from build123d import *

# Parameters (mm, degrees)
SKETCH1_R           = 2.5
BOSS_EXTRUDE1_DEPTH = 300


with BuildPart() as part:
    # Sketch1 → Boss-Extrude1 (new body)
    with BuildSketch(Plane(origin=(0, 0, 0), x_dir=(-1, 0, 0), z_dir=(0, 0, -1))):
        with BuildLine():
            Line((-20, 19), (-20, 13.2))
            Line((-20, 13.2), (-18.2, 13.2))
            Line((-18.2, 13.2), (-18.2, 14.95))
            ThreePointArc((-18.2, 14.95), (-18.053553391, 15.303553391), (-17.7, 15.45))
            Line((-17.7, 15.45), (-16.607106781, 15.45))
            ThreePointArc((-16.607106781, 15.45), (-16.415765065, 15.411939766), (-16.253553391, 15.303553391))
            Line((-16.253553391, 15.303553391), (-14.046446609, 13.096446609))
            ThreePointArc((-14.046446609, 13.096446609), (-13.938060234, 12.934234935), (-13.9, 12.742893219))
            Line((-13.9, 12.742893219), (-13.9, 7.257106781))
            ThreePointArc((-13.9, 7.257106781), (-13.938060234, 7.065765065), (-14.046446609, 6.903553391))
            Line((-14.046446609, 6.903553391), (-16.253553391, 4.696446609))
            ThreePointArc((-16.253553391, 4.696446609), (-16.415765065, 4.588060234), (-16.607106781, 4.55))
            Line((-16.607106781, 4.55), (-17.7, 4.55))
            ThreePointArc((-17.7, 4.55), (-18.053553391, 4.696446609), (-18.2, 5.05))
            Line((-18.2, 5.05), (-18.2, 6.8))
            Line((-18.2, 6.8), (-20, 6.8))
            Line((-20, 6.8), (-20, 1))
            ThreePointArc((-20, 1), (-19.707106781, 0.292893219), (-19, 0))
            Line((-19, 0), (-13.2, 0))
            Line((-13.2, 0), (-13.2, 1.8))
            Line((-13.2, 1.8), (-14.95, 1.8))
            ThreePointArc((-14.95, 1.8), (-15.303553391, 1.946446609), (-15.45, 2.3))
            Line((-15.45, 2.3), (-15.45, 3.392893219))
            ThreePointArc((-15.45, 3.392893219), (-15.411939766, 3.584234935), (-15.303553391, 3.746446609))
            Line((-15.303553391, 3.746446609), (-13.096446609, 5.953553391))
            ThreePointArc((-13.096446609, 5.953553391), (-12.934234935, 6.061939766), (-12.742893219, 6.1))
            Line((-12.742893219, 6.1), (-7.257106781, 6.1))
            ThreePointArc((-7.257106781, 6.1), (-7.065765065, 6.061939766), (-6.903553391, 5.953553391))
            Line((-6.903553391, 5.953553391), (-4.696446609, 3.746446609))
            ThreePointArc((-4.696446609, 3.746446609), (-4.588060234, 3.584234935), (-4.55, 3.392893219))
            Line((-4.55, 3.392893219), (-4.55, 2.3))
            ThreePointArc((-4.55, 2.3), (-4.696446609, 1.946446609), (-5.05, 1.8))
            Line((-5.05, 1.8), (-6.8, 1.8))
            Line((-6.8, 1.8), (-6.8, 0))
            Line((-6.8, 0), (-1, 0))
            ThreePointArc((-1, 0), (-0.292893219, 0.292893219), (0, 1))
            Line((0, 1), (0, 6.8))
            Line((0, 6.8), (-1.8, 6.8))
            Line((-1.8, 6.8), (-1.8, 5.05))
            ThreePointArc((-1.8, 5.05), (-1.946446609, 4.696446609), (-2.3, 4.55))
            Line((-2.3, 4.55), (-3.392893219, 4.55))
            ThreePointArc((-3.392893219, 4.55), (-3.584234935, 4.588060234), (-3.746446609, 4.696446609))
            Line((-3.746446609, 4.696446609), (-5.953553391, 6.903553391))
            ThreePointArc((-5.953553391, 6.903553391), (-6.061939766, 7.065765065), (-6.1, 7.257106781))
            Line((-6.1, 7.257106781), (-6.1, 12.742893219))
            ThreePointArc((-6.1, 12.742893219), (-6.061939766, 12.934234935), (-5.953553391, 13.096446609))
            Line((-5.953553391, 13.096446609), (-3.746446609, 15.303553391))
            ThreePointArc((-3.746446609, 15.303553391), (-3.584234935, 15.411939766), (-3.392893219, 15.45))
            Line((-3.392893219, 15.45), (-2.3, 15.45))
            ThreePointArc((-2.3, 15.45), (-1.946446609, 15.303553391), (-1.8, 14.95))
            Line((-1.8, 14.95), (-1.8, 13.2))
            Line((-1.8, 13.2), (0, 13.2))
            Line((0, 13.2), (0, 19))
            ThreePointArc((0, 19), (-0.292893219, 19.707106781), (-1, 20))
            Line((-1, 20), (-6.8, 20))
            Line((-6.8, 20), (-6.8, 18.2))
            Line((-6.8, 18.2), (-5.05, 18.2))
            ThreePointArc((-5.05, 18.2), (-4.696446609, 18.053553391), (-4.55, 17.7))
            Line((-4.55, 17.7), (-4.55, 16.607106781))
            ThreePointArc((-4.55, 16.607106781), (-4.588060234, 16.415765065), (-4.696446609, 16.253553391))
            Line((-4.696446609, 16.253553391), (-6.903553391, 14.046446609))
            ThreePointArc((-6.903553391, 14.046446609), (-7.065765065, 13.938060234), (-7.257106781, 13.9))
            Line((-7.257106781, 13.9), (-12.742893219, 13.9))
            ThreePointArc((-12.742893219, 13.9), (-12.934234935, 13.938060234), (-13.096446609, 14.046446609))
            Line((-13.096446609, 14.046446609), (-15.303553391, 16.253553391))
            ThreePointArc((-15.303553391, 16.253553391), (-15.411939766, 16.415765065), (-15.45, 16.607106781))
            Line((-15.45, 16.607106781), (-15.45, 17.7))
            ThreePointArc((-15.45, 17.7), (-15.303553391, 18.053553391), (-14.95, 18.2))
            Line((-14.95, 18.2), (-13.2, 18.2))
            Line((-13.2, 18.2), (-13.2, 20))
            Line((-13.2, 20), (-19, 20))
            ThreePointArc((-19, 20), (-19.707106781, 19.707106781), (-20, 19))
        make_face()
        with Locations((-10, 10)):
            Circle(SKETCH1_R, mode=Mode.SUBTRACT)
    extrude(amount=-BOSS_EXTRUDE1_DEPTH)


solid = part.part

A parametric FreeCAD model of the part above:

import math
import FreeCAD as App
import Part
import Sketcher

V = App.Vector

doc = App.newDocument("Part")
body = doc.addObject("PartDesign::Body", "Body")

# Sketch on XY plane
sketch1 = doc.addObject("Sketcher::SketchObject", "Sketch")
body.addObject(sketch1)
sketch1.AttachmentSupport = (doc.XY_Plane, [""])
sketch1.MapMode = "FlatFace"
sketch1.addGeometry([
    Part.LineSegment(V(20, 19, 0), V(20, 13.2, 0)),  # 0
    Part.LineSegment(V(20, 13.2, 0), V(18.2, 13.2, 0)),  # 1
    Part.LineSegment(V(18.2, 13.2, 0), V(18.2, 14.95, 0)),  # 2
    Part.ArcOfCircle(Part.Circle(V(17.7, 14.95, 0), V(0, 0, 1), 0.5), math.radians(0), math.radians(90)),  # 3
    Part.LineSegment(V(17.7, 15.45, 0), V(16.61, 15.45, 0)),  # 4
    Part.ArcOfCircle(Part.Circle(V(16.61, 14.95, 0), V(0, 0, 1), 0.5), math.radians(90), math.radians(135)),  # 5
    Part.LineSegment(V(16.25, 15.3, 0), V(14.05, 13.1, 0)),  # 6
    Part.ArcOfCircle(Part.Circle(V(14.4, 12.74, 0), V(0, 0, 1), 0.5), math.radians(135), math.radians(180)),  # 7
    Part.LineSegment(V(13.9, 12.74, 0), V(13.9, 7.26, 0)),  # 8
    Part.ArcOfCircle(Part.Circle(V(14.4, 7.26, 0), V(0, 0, 1), 0.5), math.radians(-180), math.radians(-135)),  # 9
    Part.LineSegment(V(14.05, 6.9, 0), V(16.25, 4.7, 0)),  # 10
    Part.ArcOfCircle(Part.Circle(V(16.61, 5.05, 0), V(0, 0, 1), 0.5), math.radians(-135), math.radians(-90)),  # 11
    Part.LineSegment(V(16.61, 4.55, 0), V(17.7, 4.55, 0)),  # 12
    Part.ArcOfCircle(Part.Circle(V(17.7, 5.05, 0), V(0, 0, 1), 0.5), math.radians(-90), math.radians(0)),  # 13
    Part.LineSegment(V(18.2, 5.05, 0), V(18.2, 6.8, 0)),  # 14
    Part.LineSegment(V(18.2, 6.8, 0), V(20, 6.8, 0)),  # 15
    Part.LineSegment(V(20, 6.8, 0), V(20, 1, 0)),  # 16
    Part.ArcOfCircle(Part.Circle(V(19, 1, 0), V(0, 0, 1), 1), math.radians(-90), math.radians(0)),  # 17
    Part.LineSegment(V(19, 0, 0), V(13.2, 0, 0)),  # 18
    Part.LineSegment(V(13.2, 0, 0), V(13.2, 1.8, 0)),  # 19
    Part.LineSegment(V(13.2, 1.8, 0), V(14.95, 1.8, 0)),  # 20
    Part.ArcOfCircle(Part.Circle(V(14.95, 2.3, 0), V(0, 0, 1), 0.5), math.radians(-90), math.radians(0)),  # 21
    Part.LineSegment(V(15.45, 2.3, 0), V(15.45, 3.39, 0)),  # 22
    Part.ArcOfCircle(Part.Circle(V(14.95, 3.39, 0), V(0, 0, 1), 0.5), math.radians(0), math.radians(45)),  # 23
    Part.LineSegment(V(15.3, 3.75, 0), V(13.1, 5.95, 0)),  # 24
    Part.ArcOfCircle(Part.Circle(V(12.74, 5.6, 0), V(0, 0, 1), 0.5), math.radians(45), math.radians(90)),  # 25
    Part.LineSegment(V(12.74, 6.1, 0), V(7.26, 6.1, 0)),  # 26
    Part.ArcOfCircle(Part.Circle(V(7.26, 5.6, 0), V(0, 0, 1), 0.5), math.radians(90), math.radians(135)),  # 27
    Part.LineSegment(V(6.9, 5.95, 0), V(4.7, 3.75, 0)),  # 28
    Part.ArcOfCircle(Part.Circle(V(5.05, 3.39, 0), V(0, 0, 1), 0.5), math.radians(135), math.radians(180)),  # 29
    Part.LineSegment(V(4.55, 3.39, 0), V(4.55, 2.3, 0)),  # 30
    Part.ArcOfCircle(Part.Circle(V(5.05, 2.3, 0), V(0, 0, 1), 0.5), math.radians(180), math.radians(270)),  # 31
    Part.LineSegment(V(5.05, 1.8, 0), V(6.8, 1.8, 0)),  # 32
    Part.LineSegment(V(6.8, 1.8, 0), V(6.8, 0, 0)),  # 33
    Part.LineSegment(V(6.8, 0, 0), V(1, 0, 0)),  # 34
    Part.ArcOfCircle(Part.Circle(V(1, 1, 0), V(0, 0, 1), 1), math.radians(-180), math.radians(-90)),  # 35
    Part.LineSegment(V(0, 1, 0), V(0, 6.8, 0)),  # 36
    Part.LineSegment(V(0, 6.8, 0), V(1.8, 6.8, 0)),  # 37
    Part.LineSegment(V(1.8, 6.8, 0), V(1.8, 5.05, 0)),  # 38
    Part.ArcOfCircle(Part.Circle(V(2.3, 5.05, 0), V(0, 0, 1), 0.5), math.radians(180), math.radians(270)),  # 39
    Part.LineSegment(V(2.3, 4.55, 0), V(3.39, 4.55, 0)),  # 40
    Part.ArcOfCircle(Part.Circle(V(3.39, 5.05, 0), V(0, 0, 1), 0.5), math.radians(-90), math.radians(-45)),  # 41
    Part.LineSegment(V(3.75, 4.7, 0), V(5.95, 6.9, 0)),  # 42
    Part.ArcOfCircle(Part.Circle(V(5.6, 7.26, 0), V(0, 0, 1), 0.5), math.radians(-45), math.radians(0)),  # 43
    Part.LineSegment(V(6.1, 7.26, 0), V(6.1, 12.74, 0)),  # 44
    Part.ArcOfCircle(Part.Circle(V(5.6, 12.74, 0), V(0, 0, 1), 0.5), math.radians(0), math.radians(45)),  # 45
    Part.LineSegment(V(5.95, 13.1, 0), V(3.75, 15.3, 0)),  # 46
    Part.ArcOfCircle(Part.Circle(V(3.39, 14.95, 0), V(0, 0, 1), 0.5), math.radians(45), math.radians(90)),  # 47
    Part.LineSegment(V(3.39, 15.45, 0), V(2.3, 15.45, 0)),  # 48
    Part.ArcOfCircle(Part.Circle(V(2.3, 14.95, 0), V(0, 0, 1), 0.5), math.radians(90), math.radians(180)),  # 49
    Part.LineSegment(V(1.8, 14.95, 0), V(1.8, 13.2, 0)),  # 50
    Part.LineSegment(V(1.8, 13.2, 0), V(0, 13.2, 0)),  # 51
    Part.LineSegment(V(0, 13.2, 0), V(0, 19, 0)),  # 52
    Part.ArcOfCircle(Part.Circle(V(1, 19, 0), V(0, 0, 1), 1), math.radians(90), math.radians(180)),  # 53
    Part.LineSegment(V(1, 20, 0), V(6.8, 20, 0)),  # 54
    Part.LineSegment(V(6.8, 20, 0), V(6.8, 18.2, 0)),  # 55
    Part.LineSegment(V(6.8, 18.2, 0), V(5.05, 18.2, 0)),  # 56
    Part.ArcOfCircle(Part.Circle(V(5.05, 17.7, 0), V(0, 0, 1), 0.5), math.radians(90), math.radians(180)),  # 57
    Part.LineSegment(V(4.55, 17.7, 0), V(4.55, 16.61, 0)),  # 58
    Part.ArcOfCircle(Part.Circle(V(5.05, 16.61, 0), V(0, 0, 1), 0.5), math.radians(-180), math.radians(-135)),  # 59
    Part.LineSegment(V(4.7, 16.25, 0), V(6.9, 14.05, 0)),  # 60
    Part.ArcOfCircle(Part.Circle(V(7.26, 14.4, 0), V(0, 0, 1), 0.5), math.radians(-135), math.radians(-90)),  # 61
    Part.LineSegment(V(7.26, 13.9, 0), V(12.74, 13.9, 0)),  # 62
    Part.ArcOfCircle(Part.Circle(V(12.74, 14.4, 0), V(0, 0, 1), 0.5), math.radians(-90), math.radians(-45)),  # 63
    Part.LineSegment(V(13.1, 14.05, 0), V(15.3, 16.25, 0)),  # 64
    Part.ArcOfCircle(Part.Circle(V(14.95, 16.61, 0), V(0, 0, 1), 0.5), math.radians(-45), math.radians(0)),  # 65
    Part.LineSegment(V(15.45, 16.61, 0), V(15.45, 17.7, 0)),  # 66
    Part.ArcOfCircle(Part.Circle(V(14.95, 17.7, 0), V(0, 0, 1), 0.5), math.radians(0), math.radians(90)),  # 67
    Part.LineSegment(V(14.95, 18.2, 0), V(13.2, 18.2, 0)),  # 68
    Part.LineSegment(V(13.2, 18.2, 0), V(13.2, 20, 0)),  # 69
    Part.LineSegment(V(13.2, 20, 0), V(19, 20, 0)),  # 70
    Part.ArcOfCircle(Part.Circle(V(19, 19, 0), V(0, 0, 1), 1), math.radians(0), math.radians(90)),  # 71
    Part.Circle(V(10, 10, 0), V(0, 0, 1), 2.5),  # 72
], False)
sketch1.addConstraint([
    Sketcher.Constraint("Coincident", 0, 2, 1, 1),
    Sketcher.Constraint("Coincident", 1, 2, 2, 1),
    Sketcher.Constraint("Tangent", 2, 2, 3, 1),
    Sketcher.Constraint("Tangent", 3, 2, 4, 1),
    Sketcher.Constraint("Tangent", 4, 2, 5, 1),
    Sketcher.Constraint("Tangent", 5, 2, 6, 1),
    Sketcher.Constraint("Tangent", 6, 2, 7, 1),
    Sketcher.Constraint("Tangent", 7, 2, 8, 1),
    Sketcher.Constraint("Tangent", 8, 2, 9, 1),
    Sketcher.Constraint("Tangent", 9, 2, 10, 1),
    Sketcher.Constraint("Tangent", 10, 2, 11, 1),
    Sketcher.Constraint("Tangent", 11, 2, 12, 1),
    Sketcher.Constraint("Tangent", 12, 2, 13, 1),
    Sketcher.Constraint("Tangent", 13, 2, 14, 1),
    Sketcher.Constraint("Coincident", 14, 2, 15, 1),
    Sketcher.Constraint("Coincident", 15, 2, 16, 1),
    Sketcher.Constraint("Tangent", 16, 2, 17, 2),
    Sketcher.Constraint("Tangent", 17, 1, 18, 1),
    Sketcher.Constraint("Coincident", 18, 2, 19, 1),
    Sketcher.Constraint("Coincident", 19, 2, 20, 1),
    Sketcher.Constraint("Tangent", 20, 2, 21, 1),
    Sketcher.Constraint("Tangent", 21, 2, 22, 1),
    Sketcher.Constraint("Tangent", 22, 2, 23, 1),
    Sketcher.Constraint("Tangent", 23, 2, 24, 1),
    Sketcher.Constraint("Tangent", 24, 2, 25, 1),
    Sketcher.Constraint("Tangent", 25, 2, 26, 1),
    Sketcher.Constraint("Tangent", 26, 2, 27, 1),
    Sketcher.Constraint("Tangent", 27, 2, 28, 1),
    Sketcher.Constraint("Tangent", 28, 2, 29, 1),
    Sketcher.Constraint("Tangent", 29, 2, 30, 1),
    Sketcher.Constraint("Tangent", 30, 2, 31, 1),
    Sketcher.Constraint("Tangent", 31, 2, 32, 1),
    Sketcher.Constraint("Coincident", 32, 2, 33, 1),
    Sketcher.Constraint("Coincident", 33, 2, 34, 1),
    Sketcher.Constraint("Tangent", 34, 2, 35, 2),
    Sketcher.Constraint("Tangent", 35, 1, 36, 1),
    Sketcher.Constraint("Coincident", 36, 2, 37, 1),
    Sketcher.Constraint("Coincident", 37, 2, 38, 1),
    Sketcher.Constraint("Tangent", 38, 2, 39, 1),
    Sketcher.Constraint("Tangent", 39, 2, 40, 1),
    Sketcher.Constraint("Tangent", 40, 2, 41, 1),
    Sketcher.Constraint("Tangent", 41, 2, 42, 1),
    Sketcher.Constraint("Tangent", 42, 2, 43, 1),
    Sketcher.Constraint("Tangent", 43, 2, 44, 1),
    Sketcher.Constraint("Tangent", 44, 2, 45, 1),
    Sketcher.Constraint("Tangent", 45, 2, 46, 1),
    Sketcher.Constraint("Tangent", 46, 2, 47, 1),
    Sketcher.Constraint("Tangent", 47, 2, 48, 1),
    Sketcher.Constraint("Tangent", 48, 2, 49, 1),
    Sketcher.Constraint("Tangent", 49, 2, 50, 1),
    Sketcher.Constraint("Coincident", 50, 2, 51, 1),
    Sketcher.Constraint("Coincident", 51, 2, 52, 1),
    Sketcher.Constraint("Tangent", 52, 2, 53, 2),
    Sketcher.Constraint("Tangent", 53, 1, 54, 1),
    Sketcher.Constraint("Coincident", 54, 2, 55, 1),
    Sketcher.Constraint("Coincident", 55, 2, 56, 1),
    Sketcher.Constraint("Tangent", 56, 2, 57, 1),
    Sketcher.Constraint("Tangent", 57, 2, 58, 1),
    Sketcher.Constraint("Tangent", 58, 2, 59, 1),
    Sketcher.Constraint("Tangent", 59, 2, 60, 1),
    Sketcher.Constraint("Tangent", 60, 2, 61, 1),
    Sketcher.Constraint("Tangent", 61, 2, 62, 1),
    Sketcher.Constraint("Tangent", 62, 2, 63, 1),
    Sketcher.Constraint("Tangent", 63, 2, 64, 1),
    Sketcher.Constraint("Tangent", 64, 2, 65, 1),
    Sketcher.Constraint("Tangent", 65, 2, 66, 1),
    Sketcher.Constraint("Tangent", 66, 2, 67, 1),
    Sketcher.Constraint("Tangent", 67, 2, 68, 1),
    Sketcher.Constraint("Coincident", 68, 2, 69, 1),
    Sketcher.Constraint("Coincident", 69, 2, 70, 1),
    Sketcher.Constraint("Tangent", 70, 2, 71, 2),
    Sketcher.Constraint("Tangent", 71, 1, 0, 1),
    Sketcher.Constraint("Vertical", 0),
    Sketcher.Constraint("Horizontal", 1),
    Sketcher.Constraint("Vertical", 2),
    Sketcher.Constraint("Horizontal", 4),
    Sketcher.Constraint("Vertical", 8),
    Sketcher.Constraint("Horizontal", 12),
    Sketcher.Constraint("Vertical", 14),
    Sketcher.Constraint("Horizontal", 15),
    Sketcher.Constraint("Vertical", 16),
    Sketcher.Constraint("Horizontal", 18),
    Sketcher.Constraint("Vertical", 19),
    Sketcher.Constraint("Horizontal", 20),
    Sketcher.Constraint("Vertical", 22),
    Sketcher.Constraint("Horizontal", 26),
    Sketcher.Constraint("Vertical", 30),
    Sketcher.Constraint("Horizontal", 32),
    Sketcher.Constraint("Vertical", 33),
    Sketcher.Constraint("Horizontal", 34),
    Sketcher.Constraint("Vertical", 36),
    Sketcher.Constraint("Horizontal", 37),
    Sketcher.Constraint("Vertical", 38),
    Sketcher.Constraint("Horizontal", 40),
    Sketcher.Constraint("Vertical", 44),
    Sketcher.Constraint("Horizontal", 48),
    Sketcher.Constraint("Vertical", 50),
    Sketcher.Constraint("Horizontal", 51),
    Sketcher.Constraint("Vertical", 52),
    Sketcher.Constraint("Horizontal", 54),
    Sketcher.Constraint("Vertical", 55),
    Sketcher.Constraint("Horizontal", 56),
    Sketcher.Constraint("Vertical", 58),
    Sketcher.Constraint("Horizontal", 62),
    Sketcher.Constraint("Vertical", 66),
    Sketcher.Constraint("Horizontal", 68),
    Sketcher.Constraint("Vertical", 69),
    Sketcher.Constraint("Horizontal", 70),
    Sketcher.Constraint("Equal", 3, 5),
    Sketcher.Constraint("Equal", 5, 7),
    Sketcher.Constraint("Equal", 7, 9),
    Sketcher.Constraint("Equal", 9, 11),
    Sketcher.Constraint("Equal", 11, 13),
    Sketcher.Constraint("Equal", 13, 21),
    Sketcher.Constraint("Equal", 21, 23),
    Sketcher.Constraint("Equal", 23, 25),
    Sketcher.Constraint("Equal", 25, 27),
    Sketcher.Constraint("Equal", 27, 29),
    Sketcher.Constraint("Equal", 29, 31),
    Sketcher.Constraint("Equal", 17, 35),
    Sketcher.Constraint("Equal", 31, 39),
    Sketcher.Constraint("Equal", 39, 41),
    Sketcher.Constraint("Equal", 41, 43),
    Sketcher.Constraint("Equal", 43, 45),
    Sketcher.Constraint("Equal", 45, 47),
    Sketcher.Constraint("Equal", 47, 49),
    Sketcher.Constraint("Equal", 35, 53),
    Sketcher.Constraint("Equal", 49, 57),
    Sketcher.Constraint("Equal", 57, 59),
    Sketcher.Constraint("Equal", 59, 61),
    Sketcher.Constraint("Equal", 61, 63),
    Sketcher.Constraint("Equal", 63, 65),
    Sketcher.Constraint("Equal", 65, 67),
    Sketcher.Constraint("Equal", 53, 71),
    Sketcher.Constraint("PointOnObject", 17, 1, -1),
    Sketcher.Constraint("PointOnObject", 33, 2, -1),
    Sketcher.Constraint("PointOnObject", 35, 1, -2),
    Sketcher.Constraint("PointOnObject", 51, 2, -2),
    Sketcher.Constraint("Perpendicular", 6, 10),
    Sketcher.Constraint("Parallel", 10, 24),
    Sketcher.Constraint("Perpendicular", 24, 28),
    Sketcher.Constraint("Parallel", 28, 42),
    Sketcher.Constraint("Perpendicular", 42, 46),
    Sketcher.Constraint("Parallel", 46, 60),
    Sketcher.Constraint("Perpendicular", 60, 64),
    Sketcher.Constraint("Horizontal", 23, 3, 29, 3),
    Sketcher.Constraint("Horizontal", 21, 3, 31, 3),
    Sketcher.Constraint("Horizontal", 13, 3, 39, 3),
    Sketcher.Constraint("Horizontal", 9, 3, 43, 3),
    Sketcher.Constraint("Horizontal", 7, 3, 45, 3),
    Sketcher.Constraint("Horizontal", 5, 3, 47, 3),
    Sketcher.Constraint("Horizontal", 59, 3, 65, 3),
    Sketcher.Constraint("Horizontal", 57, 3, 67, 3),
    Sketcher.Constraint("Horizontal", 53, 3, 71, 3),
    Sketcher.Constraint("Horizontal", 24, 2, 27, 2),
    Sketcher.Constraint("Horizontal", 15, 2, 36, 2),
    Sketcher.Constraint("Horizontal", 1, 2, 50, 2),
    Sketcher.Constraint("Vertical", 5, 3, 11, 3),
    Sketcher.Constraint("Vertical", 3, 3, 13, 3),
    Sketcher.Constraint("Vertical", 39, 3, 49, 3),
    Sketcher.Constraint("Vertical", 31, 3, 57, 3),
    Sketcher.Constraint("Vertical", 27, 3, 61, 3),
    Sketcher.Constraint("Vertical", 25, 3, 63, 3),
    Sketcher.Constraint("Vertical", 17, 3, 71, 3),
    Sketcher.Constraint("Vertical", 33, 2, 54, 2),
    Sketcher.Constraint("Vertical", 19, 2, 68, 2),
    Sketcher.Constraint("Equal", 20, 32),
    Sketcher.Constraint("Equal", 18, 34),
    Sketcher.Constraint("Equal", 15, 37),
    Sketcher.Constraint("Equal", 12, 40),
    Sketcher.Constraint("Equal", 70, 0),
    Sketcher.Constraint("Equal", 68, 2),
    Sketcher.Constraint("Equal", 62, 8),
    Sketcher.Constraint("Equal", 2, 14),
    Sketcher.Constraint("Equal", 0, 16),
    Sketcher.Constraint("Equal", 51, 19),
    Sketcher.Constraint("Equal", 48, 22),
    Sketcher.Constraint("Equal", 33, 55),
    Sketcher.Constraint("Equal", 30, 58),
    Sketcher.Constraint("Equal", 10, 24),
    Sketcher.Constraint("Diameter", 72, 5.0),
    Sketcher.Constraint("Radius", 17, 1.0),
    Sketcher.Constraint("Radius", 3, 0.5),
    Sketcher.Constraint("DistanceX", 1, 2, 1, 1, 1.8),
    Sketcher.Constraint("DistanceX", 18, 2, 18, 1, 5.8),
    Sketcher.Constraint("DistanceX", -1, 1, 17, 3, 19.0),
    Sketcher.Constraint("DistanceX", -1, 1, 72, 3, 10.0),
    Sketcher.Constraint("DistanceY", -1, 1, 72, 3, 10.0),
    Sketcher.Constraint("DistanceX", 20, 1, 20, 2, 1.75),
    Sketcher.Constraint("DistanceX", -1, 1, 7, 3, 14.4),
    Sketcher.Constraint("Distance", 6, 3.12132),
])
pad1 = doc.addObject("PartDesign::Pad", "Pad")
body.addObject(pad1)
pad1.Profile = sketch1
pad1.Length = 300

doc.recompute()
